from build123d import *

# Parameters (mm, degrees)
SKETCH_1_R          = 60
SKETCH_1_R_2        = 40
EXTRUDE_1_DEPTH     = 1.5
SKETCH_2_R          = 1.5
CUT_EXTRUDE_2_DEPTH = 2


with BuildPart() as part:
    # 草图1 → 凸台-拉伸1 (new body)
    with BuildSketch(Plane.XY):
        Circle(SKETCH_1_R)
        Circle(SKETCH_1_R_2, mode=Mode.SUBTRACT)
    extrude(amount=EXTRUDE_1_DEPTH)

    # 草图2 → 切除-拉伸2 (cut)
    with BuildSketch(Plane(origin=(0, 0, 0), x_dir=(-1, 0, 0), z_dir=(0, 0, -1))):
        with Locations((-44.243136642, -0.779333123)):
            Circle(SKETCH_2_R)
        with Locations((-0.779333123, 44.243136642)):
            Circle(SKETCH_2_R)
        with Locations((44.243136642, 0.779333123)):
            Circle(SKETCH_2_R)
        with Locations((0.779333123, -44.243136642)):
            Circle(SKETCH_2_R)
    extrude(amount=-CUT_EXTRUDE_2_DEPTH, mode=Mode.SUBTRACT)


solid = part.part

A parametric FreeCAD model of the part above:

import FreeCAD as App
import Part
import Sketcher
from FreeCAD import Vector

doc = App.newDocument("Part")
body = doc.addObject("PartDesign::Body", "Body")

sketch1 = body.newObject("Sketcher::SketchObject", "Sketch")
sketch1.AttachmentSupport = (doc.getObject("XY_Plane"), [""])
sketch1.MapMode = "FlatFace"
sketch1.addGeometry([
    Part.Circle(Vector(0, 0, 0), Vector(0, 0, 1), 60),
    Part.Circle(Vector(0, 0, 0), Vector(0, 0, 1), 40),
], False)
sketch1.addConstraint([
    Sketcher.Constraint("Coincident", 0, 3, -1, 1),
    Sketcher.Constraint("Coincident", 1, 3, -1, 1),
    Sketcher.Constraint("Diameter", 0, 120.0),
    Sketcher.Constraint("Diameter", 1, 80.0),
])
pad1 = body.newObject("PartDesign::Pad", "Pad")
pad1.Profile = sketch1
pad1.Length = 1.5

sketch2 = body.newObject("Sketcher::SketchObject", "Sketch001")
sketch2.AttachmentSupport = (doc.getObject("XY_Plane"), [""])
sketch2.MapMode = "FlatFace"
sketch2.addGeometry([
    Part.Circle(Vector(44.2, -0.8, 0), Vector(0, 0, 1), 1.5),
    Part.Circle(Vector(0.8, 44.2, 0), Vector(0, 0, 1), 1.5),
    Part.Circle(Vector(-44.2, 0.8, 0), Vector(0, 0, 1), 1.5),
    Part.Circle(Vector(-0.8, -44.2, 0), Vector(0, 0, 1), 1.5),
], False)
sketch2.addConstraint([
    Sketcher.Constraint("Equal", 0, 1),
    Sketcher.Constraint("Equal", 1, 2),
    Sketcher.Constraint("Equal", 2, 3),
    Sketcher.Constraint("Symmetric", 0, 3, 2, 3, -1, 1),
    Sketcher.Constraint("Symmetric", 1, 3, 3, 3, -1, 1),
    Sketcher.Constraint("Diameter", 0, 3.0),
    Sketcher.Constraint("DistanceY", 0, 3, 1, 3, 45.02247),
    Sketcher.Constraint("DistanceX", 2, 3, 1, 3, 45.02247),
    Sketcher.Constraint("DistanceX", -1, 1, 0, 3, 44.243137),
    Sketcher.Constraint("DistanceY", 0, 3, -1, 1, 0.779333),
])
pocket1 = body.newObject("PartDesign::Pocket", "Pocket")
pocket1.Profile = sketch2
pocket1.Length = 2
pocket1.Reversed = True

doc.recompute()
